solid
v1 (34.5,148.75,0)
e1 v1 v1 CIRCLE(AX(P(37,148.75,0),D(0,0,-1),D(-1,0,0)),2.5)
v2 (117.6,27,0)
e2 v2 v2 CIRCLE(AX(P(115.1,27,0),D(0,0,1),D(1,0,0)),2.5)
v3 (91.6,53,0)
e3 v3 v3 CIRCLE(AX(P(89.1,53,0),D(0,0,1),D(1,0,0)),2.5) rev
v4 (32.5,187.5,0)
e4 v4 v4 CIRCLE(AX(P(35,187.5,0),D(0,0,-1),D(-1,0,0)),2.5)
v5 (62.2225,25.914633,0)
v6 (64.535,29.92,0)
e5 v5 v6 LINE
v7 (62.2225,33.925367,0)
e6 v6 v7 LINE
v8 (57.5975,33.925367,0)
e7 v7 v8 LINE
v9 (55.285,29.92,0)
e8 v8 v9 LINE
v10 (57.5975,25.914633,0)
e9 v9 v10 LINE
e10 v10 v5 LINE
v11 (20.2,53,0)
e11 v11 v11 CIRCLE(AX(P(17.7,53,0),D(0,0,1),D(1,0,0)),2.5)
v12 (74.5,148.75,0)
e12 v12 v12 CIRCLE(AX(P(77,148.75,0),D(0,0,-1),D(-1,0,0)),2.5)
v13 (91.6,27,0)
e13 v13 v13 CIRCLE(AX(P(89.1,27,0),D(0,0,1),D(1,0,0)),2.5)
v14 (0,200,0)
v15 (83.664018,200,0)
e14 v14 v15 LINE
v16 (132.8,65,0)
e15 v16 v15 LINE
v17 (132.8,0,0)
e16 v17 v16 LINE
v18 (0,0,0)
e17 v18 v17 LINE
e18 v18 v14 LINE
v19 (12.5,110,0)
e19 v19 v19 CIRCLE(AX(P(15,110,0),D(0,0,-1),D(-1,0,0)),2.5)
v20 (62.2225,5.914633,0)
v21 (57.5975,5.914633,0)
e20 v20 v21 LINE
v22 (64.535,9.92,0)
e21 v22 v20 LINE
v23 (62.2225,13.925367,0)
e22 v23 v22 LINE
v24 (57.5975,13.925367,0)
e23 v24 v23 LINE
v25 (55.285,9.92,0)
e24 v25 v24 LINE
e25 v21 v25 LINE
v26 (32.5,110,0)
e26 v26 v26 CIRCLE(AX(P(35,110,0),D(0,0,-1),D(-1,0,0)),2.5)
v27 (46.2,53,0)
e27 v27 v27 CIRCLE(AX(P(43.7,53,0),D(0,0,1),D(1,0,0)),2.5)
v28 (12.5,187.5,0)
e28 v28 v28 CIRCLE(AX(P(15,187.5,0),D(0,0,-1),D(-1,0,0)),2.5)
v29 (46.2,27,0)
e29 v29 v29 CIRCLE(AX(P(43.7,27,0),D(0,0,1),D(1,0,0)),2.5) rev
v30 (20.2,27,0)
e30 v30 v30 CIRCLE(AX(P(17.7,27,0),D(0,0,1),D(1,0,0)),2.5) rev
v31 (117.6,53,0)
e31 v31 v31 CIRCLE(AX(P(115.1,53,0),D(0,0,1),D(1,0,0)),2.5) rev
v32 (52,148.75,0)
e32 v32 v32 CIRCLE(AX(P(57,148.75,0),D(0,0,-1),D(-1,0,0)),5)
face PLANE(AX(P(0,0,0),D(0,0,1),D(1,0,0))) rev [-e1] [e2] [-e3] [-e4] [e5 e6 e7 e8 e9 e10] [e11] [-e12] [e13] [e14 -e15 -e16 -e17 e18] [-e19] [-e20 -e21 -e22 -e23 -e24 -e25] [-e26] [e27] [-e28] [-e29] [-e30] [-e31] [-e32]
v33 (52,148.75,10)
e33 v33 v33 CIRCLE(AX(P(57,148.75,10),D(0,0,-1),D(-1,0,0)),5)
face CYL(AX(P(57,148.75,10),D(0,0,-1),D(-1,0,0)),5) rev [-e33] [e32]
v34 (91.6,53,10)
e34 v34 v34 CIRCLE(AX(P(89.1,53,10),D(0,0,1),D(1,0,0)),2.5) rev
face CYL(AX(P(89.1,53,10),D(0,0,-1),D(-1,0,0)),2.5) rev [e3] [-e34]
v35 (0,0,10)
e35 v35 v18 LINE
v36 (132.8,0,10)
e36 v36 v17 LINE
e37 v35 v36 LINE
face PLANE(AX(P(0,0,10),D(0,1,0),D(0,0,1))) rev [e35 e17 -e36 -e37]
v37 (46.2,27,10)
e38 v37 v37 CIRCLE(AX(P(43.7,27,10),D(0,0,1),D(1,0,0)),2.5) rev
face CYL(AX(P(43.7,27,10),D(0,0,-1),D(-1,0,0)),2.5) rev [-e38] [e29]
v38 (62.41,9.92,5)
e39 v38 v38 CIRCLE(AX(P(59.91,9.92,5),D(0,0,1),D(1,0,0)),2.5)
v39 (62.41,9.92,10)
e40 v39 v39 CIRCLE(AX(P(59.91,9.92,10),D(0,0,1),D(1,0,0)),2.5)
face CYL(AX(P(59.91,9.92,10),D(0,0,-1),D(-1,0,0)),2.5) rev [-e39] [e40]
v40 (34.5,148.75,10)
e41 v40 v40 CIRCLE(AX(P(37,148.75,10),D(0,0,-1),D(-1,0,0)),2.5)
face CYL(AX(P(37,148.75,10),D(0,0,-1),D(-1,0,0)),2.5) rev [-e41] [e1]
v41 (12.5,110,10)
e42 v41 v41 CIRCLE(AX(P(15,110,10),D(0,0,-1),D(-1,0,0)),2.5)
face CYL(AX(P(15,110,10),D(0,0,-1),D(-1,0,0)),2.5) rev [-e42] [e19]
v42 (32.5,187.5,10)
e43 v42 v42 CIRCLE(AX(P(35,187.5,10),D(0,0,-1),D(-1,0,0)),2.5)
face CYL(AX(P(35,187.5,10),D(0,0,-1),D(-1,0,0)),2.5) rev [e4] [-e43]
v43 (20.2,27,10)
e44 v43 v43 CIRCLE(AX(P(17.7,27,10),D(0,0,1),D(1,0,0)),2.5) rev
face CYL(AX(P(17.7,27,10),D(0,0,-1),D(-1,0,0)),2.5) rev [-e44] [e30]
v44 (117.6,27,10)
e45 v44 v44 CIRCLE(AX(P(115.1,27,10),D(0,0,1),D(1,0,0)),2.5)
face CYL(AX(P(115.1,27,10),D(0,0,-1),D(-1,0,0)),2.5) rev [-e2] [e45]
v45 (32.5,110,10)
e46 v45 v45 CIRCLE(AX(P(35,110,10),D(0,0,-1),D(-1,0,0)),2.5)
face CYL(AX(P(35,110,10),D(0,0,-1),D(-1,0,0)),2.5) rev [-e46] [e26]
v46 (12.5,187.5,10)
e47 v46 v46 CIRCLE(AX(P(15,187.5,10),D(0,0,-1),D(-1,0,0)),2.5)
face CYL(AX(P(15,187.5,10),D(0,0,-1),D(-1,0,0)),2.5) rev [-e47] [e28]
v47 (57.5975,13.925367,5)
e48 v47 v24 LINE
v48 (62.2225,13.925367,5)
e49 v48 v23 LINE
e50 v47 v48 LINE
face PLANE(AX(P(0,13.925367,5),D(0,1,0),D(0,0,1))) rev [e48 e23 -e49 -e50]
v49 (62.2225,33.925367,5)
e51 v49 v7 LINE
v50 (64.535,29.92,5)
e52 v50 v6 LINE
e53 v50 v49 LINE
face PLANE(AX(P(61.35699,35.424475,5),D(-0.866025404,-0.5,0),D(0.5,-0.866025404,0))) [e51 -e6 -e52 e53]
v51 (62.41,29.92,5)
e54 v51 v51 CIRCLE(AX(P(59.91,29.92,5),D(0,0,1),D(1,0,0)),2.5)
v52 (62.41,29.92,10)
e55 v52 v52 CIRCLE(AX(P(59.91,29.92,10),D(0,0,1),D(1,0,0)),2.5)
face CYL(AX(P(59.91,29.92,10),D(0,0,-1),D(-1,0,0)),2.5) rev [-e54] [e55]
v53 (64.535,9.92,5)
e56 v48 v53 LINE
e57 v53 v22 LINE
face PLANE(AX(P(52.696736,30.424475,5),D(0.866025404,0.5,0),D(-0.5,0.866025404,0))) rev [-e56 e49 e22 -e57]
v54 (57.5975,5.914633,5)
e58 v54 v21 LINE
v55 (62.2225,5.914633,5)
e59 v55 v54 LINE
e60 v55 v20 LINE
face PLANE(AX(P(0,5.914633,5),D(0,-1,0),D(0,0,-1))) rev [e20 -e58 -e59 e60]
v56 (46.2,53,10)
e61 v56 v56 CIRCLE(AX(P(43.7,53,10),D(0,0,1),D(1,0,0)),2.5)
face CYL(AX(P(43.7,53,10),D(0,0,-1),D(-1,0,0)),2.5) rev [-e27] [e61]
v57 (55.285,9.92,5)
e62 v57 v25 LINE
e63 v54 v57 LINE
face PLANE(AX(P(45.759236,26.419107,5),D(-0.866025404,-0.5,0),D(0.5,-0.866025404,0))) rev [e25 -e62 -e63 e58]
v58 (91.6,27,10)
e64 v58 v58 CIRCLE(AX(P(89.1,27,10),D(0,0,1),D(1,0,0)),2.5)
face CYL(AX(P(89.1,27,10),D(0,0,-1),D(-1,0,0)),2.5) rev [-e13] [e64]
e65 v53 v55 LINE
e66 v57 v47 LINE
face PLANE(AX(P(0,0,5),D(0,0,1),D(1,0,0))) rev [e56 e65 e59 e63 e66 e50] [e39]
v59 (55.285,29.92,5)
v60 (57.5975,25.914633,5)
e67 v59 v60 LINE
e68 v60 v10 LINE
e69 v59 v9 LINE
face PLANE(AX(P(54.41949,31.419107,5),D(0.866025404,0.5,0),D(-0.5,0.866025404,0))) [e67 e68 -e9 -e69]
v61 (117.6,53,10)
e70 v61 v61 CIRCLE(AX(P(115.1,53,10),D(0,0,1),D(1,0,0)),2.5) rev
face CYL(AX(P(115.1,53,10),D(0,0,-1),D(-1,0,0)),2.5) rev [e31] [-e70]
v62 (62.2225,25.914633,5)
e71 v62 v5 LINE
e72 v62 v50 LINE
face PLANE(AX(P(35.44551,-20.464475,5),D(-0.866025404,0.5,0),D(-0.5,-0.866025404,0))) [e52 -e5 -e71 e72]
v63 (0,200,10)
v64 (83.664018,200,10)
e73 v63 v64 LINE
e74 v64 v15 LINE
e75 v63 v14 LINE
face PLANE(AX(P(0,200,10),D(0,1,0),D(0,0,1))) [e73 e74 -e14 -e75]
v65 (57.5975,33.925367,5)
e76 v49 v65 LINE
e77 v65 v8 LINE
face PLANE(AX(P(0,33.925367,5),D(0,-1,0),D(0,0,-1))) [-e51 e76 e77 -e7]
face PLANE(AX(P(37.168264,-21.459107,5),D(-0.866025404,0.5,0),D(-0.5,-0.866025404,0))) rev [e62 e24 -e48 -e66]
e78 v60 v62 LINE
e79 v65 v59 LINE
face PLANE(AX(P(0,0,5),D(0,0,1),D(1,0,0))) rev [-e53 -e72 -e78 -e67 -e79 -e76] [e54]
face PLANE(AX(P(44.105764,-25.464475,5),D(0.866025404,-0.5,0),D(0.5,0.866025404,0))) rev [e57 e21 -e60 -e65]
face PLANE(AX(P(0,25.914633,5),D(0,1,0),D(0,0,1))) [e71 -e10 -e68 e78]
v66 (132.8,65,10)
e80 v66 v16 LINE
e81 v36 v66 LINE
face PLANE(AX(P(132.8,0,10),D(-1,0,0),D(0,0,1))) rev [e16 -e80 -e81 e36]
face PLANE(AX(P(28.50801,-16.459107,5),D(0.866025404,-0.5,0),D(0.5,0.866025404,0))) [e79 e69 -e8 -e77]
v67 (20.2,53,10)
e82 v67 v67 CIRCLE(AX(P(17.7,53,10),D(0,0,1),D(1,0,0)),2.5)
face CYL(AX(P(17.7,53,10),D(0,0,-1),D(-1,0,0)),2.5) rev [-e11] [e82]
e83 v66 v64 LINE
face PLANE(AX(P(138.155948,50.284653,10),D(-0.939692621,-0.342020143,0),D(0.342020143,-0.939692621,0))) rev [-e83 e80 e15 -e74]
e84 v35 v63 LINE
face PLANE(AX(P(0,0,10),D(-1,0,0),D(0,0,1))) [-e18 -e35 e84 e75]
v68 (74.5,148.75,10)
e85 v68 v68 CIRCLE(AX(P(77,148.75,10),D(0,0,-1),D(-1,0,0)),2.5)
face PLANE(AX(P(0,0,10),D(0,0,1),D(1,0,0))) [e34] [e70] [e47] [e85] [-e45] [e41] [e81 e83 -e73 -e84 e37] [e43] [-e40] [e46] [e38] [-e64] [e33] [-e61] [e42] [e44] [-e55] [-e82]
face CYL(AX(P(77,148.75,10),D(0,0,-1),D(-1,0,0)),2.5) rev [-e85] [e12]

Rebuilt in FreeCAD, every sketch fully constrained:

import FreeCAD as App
import Part
import Sketcher
Q = App.Units.Quantity


def add_polygon(sketch, points):
    """Adds a closed chain of lines whose ends are joined by coincident constraints."""
    first, n = sketch.GeometryCount, len(points)
    for a, b in zip(points, points[1:] + points[:1]):
        sketch.addGeometry(Part.LineSegment(App.Vector(*a, 0), App.Vector(*b, 0)), False)
    for i in range(n):
        sketch.addConstraint(Sketcher.Constraint("Coincident", first + i, 2, first + (i + 1) % n, 1))

doc = App.newDocument("Part")
body = doc.addObject("PartDesign::Body", "Body")

sketch1 = body.newObject("Sketcher::SketchObject", "Sketch")
sketch1.AttachmentSupport = (doc.getObject("XY_Plane"), [""])
sketch1.MapMode = "FlatFace"
add_polygon(sketch1, [(0, 0), (132.8, 0), (132.8, 65), (83.7, 200), (0, 200)])
sketch1.addGeometry(Part.Circle(App.Vector(59.9, 9.9, 0), App.Vector(0, 0, 1), 2.5), False)
sketch1.addGeometry(Part.Circle(App.Vector(17.7, 27, 0), App.Vector(0, 0, 1), 2.5), False)
sketch1.addGeometry(Part.Circle(App.Vector(43.7, 27, 0), App.Vector(0, 0, 1), 2.5), False)
sketch1.addGeometry(Part.Circle(App.Vector(59.9, 29.9, 0), App.Vector(0, 0, 1), 2.5), False)
sketch1.addGeometry(Part.Circle(App.Vector(89.1, 27, 0), App.Vector(0, 0, 1), 2.5), False)
sketch1.addGeometry(Part.Circle(App.Vector(115.1, 27, 0), App.Vector(0, 0, 1), 2.5), False)
sketch1.addGeometry(Part.Circle(App.Vector(17.7, 53, 0), App.Vector(0, 0, 1), 2.5), False)
sketch1.addGeometry(Part.Circle(App.Vector(43.7, 53, 0), App.Vector(0, 0, 1), 2.5), False)
sketch1.addGeometry(Part.Circle(App.Vector(89.1, 53, 0), App.Vector(0, 0, 1), 2.5), False)
sketch1.addGeometry(Part.Circle(App.Vector(115.1, 53, 0), App.Vector(0, 0, 1), 2.5), False)
sketch1.addConstraint([
    Sketcher.Constraint("Horizontal", 0),
    Sketcher.Constraint("Vertical", 1),
    Sketcher.Constraint("Horizontal", 3),
    Sketcher.Constraint("Vertical", 4),
    Sketcher.Constraint("Coincident", 4, 2, -1, 1),
    Sketcher.Constraint("Equal", 5, 6),
    Sketcher.Constraint("Equal", 6, 7),
    Sketcher.Constraint("Equal", 7, 8),
    Sketcher.Constraint("Equal", 8, 9),
    Sketcher.Constraint("Equal", 9, 10),
    Sketcher.Constraint("Equal", 10, 11),
    Sketcher.Constraint("Equal", 11, 12),
    Sketcher.Constraint("Equal", 12, 13),
    Sketcher.Constraint("Equal", 13, 14),
    Sketcher.Constraint("Horizontal", 6, 3, 7, 3),
    Sketcher.Constraint("Horizontal", 7, 3, 9, 3),
    Sketcher.Constraint("Horizontal", 9, 3, 10, 3),
    Sketcher.Constraint("Horizontal", 11, 3, 12, 3),
    Sketcher.Constraint("Horizontal", 12, 3, 13, 3),
    Sketcher.Constraint("Horizontal", 13, 3, 14, 3),
    Sketcher.Constraint("Vertical", 5, 3, 8, 3),
    Sketcher.Constraint("Vertical", 6, 3, 11, 3),
    Sketcher.Constraint("Vertical", 7, 3, 12, 3),
    Sketcher.Constraint("Vertical", 9, 3, 13, 3),
    Sketcher.Constraint("Vertical", 10, 3, 14, 3),
    Sketcher.Constraint("Diameter", 5, Q("5 mm")),
    Sketcher.Constraint("DistanceY", 1, 1, 1, 2, Q("65 mm")),
    Sketcher.Constraint("DistanceY", 4, 2, 4, 1, Q("200 mm")),
    Sketcher.Constraint("Angle", 2, Q("110 deg")),
    Sketcher.Constraint("DistanceX", 0, 1, 0, 2, Q("132.8 mm")),
    Sketcher.Constraint("DistanceY", -1, 1, 6, 3, Q("27 mm")),
    Sketcher.Constraint("DistanceY", -1, 1, 11, 3, Q("53 mm")),
    Sketcher.Constraint("DistanceX", 6, 3, 7, 3, Q("26 mm")),
    Sketcher.Constraint("DistanceY", 5, 3, 8, 3, Q("20 mm")),
    Sketcher.Constraint("DistanceX", 9, 3, 10, 3, Q("26 mm")),
    Sketcher.Constraint("DistanceX", -1, 1, 6, 3, Q("17.7 mm")),
    Sketcher.Constraint("DistanceX", -1, 1, 9, 3, Q("89.1 mm")),
    Sketcher.Constraint("DistanceX", -1, 1, 5, 3, Q("59.91 mm")),
    Sketcher.Constraint("DistanceY", -1, 1, 5, 3, Q("9.92 mm")),
])
pad1 = body.newObject("PartDesign::Pad", "Pad")
pad1.Profile = sketch1
pad1.Length = 10

sketch2 = body.newObject("Sketcher::SketchObject", "Sketch001")
sketch2.AttachmentSupport = (doc.getObject("XY_Plane"), [""])
sketch2.MapMode = "FlatFace"
add_polygon(sketch2, [(64.5, 29.9), (62.2, 33.9), (57.6, 33.9), (55.3, 29.9), (57.6, 25.9), (62.2, 25.9)])
add_polygon(sketch2, [(64.5, 9.9), (62.2, 13.9), (57.6, 13.9), (55.3, 9.9), (57.6, 5.9), (62.2, 5.9)])
sketch2.addConstraint([
    Sketcher.Constraint("Horizontal", 1),
    Sketcher.Constraint("Horizontal", 4),
    Sketcher.Constraint("Horizontal", 7),
    Sketcher.Constraint("Horizontal", 10),
    Sketcher.Constraint("Parallel", 0, 3),
    Sketcher.Constraint("Parallel", 2, 5),
    Sketcher.Constraint("Parallel", 3, 6),
    Sketcher.Constraint("Parallel", 5, 8),
    Sketcher.Constraint("Parallel", 6, 9),
    Sketcher.Constraint("Parallel", 8, 11),
    Sketcher.Constraint("Horizontal", 2, 2, 5, 2),
    Sketcher.Constraint("Horizontal", 8, 2, 11, 2),
    Sketcher.Constraint("Vertical", 1, 2, 3, 2),
    Sketcher.Constraint("Vertical", 0, 2, 4, 2),
    Sketcher.Constraint("Vertical", 4, 2, 6, 2),
    Sketcher.Constraint("Vertical", 3, 2, 7, 2),
    Sketcher.Constraint("Vertical", 2, 2, 8, 2),
    Sketcher.Constraint("Vertical", 7, 2, 9, 2),
    Sketcher.Constraint("Angle", 0, Q("120 deg")),
    Sketcher.Constraint("DistanceY", 6, 2, 0, 2, Q("20 mm")),
    Sketcher.Constraint("DistanceX", 1, 2, 1, 1, Q("4.625 mm")),
    Sketcher.Constraint("DistanceY", -1, 1, 2, 2, Q("29.92 mm")),
    Sketcher.Constraint("DistanceX", 2, 2, 5, 2, Q("9.25 mm")),
    Sketcher.Constraint("DistanceX", -1, 1, 2, 2, Q("55.285 mm")),
])
pocket1 = body.newObject("PartDesign::Pocket", "Pocket")
pocket1.Profile = sketch2
pocket1.Length = 5
pocket1.Reversed = True

sketch3 = body.newObject("Sketcher::SketchObject", "Sketch002")
sketch3.AttachmentSupport = (doc.getObject("XY_Plane"), [""])
sketch3.MapMode = "FlatFace"
sketch3.addGeometry([
    Part.Circle(App.Vector(35, 187.5, 0), App.Vector(0, 0, 1), 2.5),
    Part.Circle(App.Vector(15, 187.5, 0), App.Vector(0, 0, 1), 2.5),
    Part.Circle(App.Vector(35, 110, 0), App.Vector(0, 0, 1), 2.5),
    Part.Circle(App.Vector(15, 110, 0), App.Vector(0, 0, 1), 2.5),
    Part.Circle(App.Vector(57, 148.8, 0), App.Vector(0, 0, 1), 5),
    Part.Circle(App.Vector(77, 148.8, 0), App.Vector(0, 0, 1), 2.5),
    Part.Circle(App.Vector(37, 148.8, 0), App.Vector(0, 0, 1), 2.5),
], False)
sketch3.addConstraint([
    Sketcher.Constraint("Equal", 0, 1),
    Sketcher.Constraint("Equal", 1, 2),
    Sketcher.Constraint("Equal", 2, 3),
    Sketcher.Constraint("Equal", 3, 5),
    Sketcher.Constraint("Equal", 5, 6),
    Sketcher.Constraint("Horizontal", 0, 3, 1, 3),
    Sketcher.Constraint("Horizontal", 2, 3, 3, 3),
    Sketcher.Constraint("Horizontal", 4, 3, 5, 3),
    Sketcher.Constraint("Horizontal", 5, 3, 6, 3),
    Sketcher.Constraint("Vertical", 0, 3, 2, 3),
    Sketcher.Constraint("Vertical", 1, 3, 3, 3),
    Sketcher.Constraint("Diameter", 0, Q("5 mm")),
    Sketcher.Constraint("Diameter", 4, Q("10 mm")),
    Sketcher.Constraint("DistanceX", -1, 1, 0, 3, Q("35 mm")),
    Sketcher.Constraint("DistanceX", -1, 1, 1, 3, Q("15 mm")),
    Sketcher.Constraint("DistanceY", -1, 1, 2, 3, Q("110 mm")),
    Sketcher.Constraint("DistanceX", -1, 1, 4, 3, Q("57 mm")),
    Sketcher.Constraint("DistanceX", -1, 1, 5, 3, Q("77 mm")),
    Sketcher.Constraint("DistanceX", -1, 1, 6, 3, Q("37 mm")),
    Sketcher.Constraint("DistanceY", -1, 1, 0, 3, Q("187.5 mm")),
    Sketcher.Constraint("DistanceY", -1, 1, 4, 3, Q("148.75 mm")),
])
pocket2 = body.newObject("PartDesign::Pocket", "Pocket001")
pocket2.Profile = sketch3
pocket2.Type = "ThroughAll"
pocket2.Reversed = True

doc.recompute()
